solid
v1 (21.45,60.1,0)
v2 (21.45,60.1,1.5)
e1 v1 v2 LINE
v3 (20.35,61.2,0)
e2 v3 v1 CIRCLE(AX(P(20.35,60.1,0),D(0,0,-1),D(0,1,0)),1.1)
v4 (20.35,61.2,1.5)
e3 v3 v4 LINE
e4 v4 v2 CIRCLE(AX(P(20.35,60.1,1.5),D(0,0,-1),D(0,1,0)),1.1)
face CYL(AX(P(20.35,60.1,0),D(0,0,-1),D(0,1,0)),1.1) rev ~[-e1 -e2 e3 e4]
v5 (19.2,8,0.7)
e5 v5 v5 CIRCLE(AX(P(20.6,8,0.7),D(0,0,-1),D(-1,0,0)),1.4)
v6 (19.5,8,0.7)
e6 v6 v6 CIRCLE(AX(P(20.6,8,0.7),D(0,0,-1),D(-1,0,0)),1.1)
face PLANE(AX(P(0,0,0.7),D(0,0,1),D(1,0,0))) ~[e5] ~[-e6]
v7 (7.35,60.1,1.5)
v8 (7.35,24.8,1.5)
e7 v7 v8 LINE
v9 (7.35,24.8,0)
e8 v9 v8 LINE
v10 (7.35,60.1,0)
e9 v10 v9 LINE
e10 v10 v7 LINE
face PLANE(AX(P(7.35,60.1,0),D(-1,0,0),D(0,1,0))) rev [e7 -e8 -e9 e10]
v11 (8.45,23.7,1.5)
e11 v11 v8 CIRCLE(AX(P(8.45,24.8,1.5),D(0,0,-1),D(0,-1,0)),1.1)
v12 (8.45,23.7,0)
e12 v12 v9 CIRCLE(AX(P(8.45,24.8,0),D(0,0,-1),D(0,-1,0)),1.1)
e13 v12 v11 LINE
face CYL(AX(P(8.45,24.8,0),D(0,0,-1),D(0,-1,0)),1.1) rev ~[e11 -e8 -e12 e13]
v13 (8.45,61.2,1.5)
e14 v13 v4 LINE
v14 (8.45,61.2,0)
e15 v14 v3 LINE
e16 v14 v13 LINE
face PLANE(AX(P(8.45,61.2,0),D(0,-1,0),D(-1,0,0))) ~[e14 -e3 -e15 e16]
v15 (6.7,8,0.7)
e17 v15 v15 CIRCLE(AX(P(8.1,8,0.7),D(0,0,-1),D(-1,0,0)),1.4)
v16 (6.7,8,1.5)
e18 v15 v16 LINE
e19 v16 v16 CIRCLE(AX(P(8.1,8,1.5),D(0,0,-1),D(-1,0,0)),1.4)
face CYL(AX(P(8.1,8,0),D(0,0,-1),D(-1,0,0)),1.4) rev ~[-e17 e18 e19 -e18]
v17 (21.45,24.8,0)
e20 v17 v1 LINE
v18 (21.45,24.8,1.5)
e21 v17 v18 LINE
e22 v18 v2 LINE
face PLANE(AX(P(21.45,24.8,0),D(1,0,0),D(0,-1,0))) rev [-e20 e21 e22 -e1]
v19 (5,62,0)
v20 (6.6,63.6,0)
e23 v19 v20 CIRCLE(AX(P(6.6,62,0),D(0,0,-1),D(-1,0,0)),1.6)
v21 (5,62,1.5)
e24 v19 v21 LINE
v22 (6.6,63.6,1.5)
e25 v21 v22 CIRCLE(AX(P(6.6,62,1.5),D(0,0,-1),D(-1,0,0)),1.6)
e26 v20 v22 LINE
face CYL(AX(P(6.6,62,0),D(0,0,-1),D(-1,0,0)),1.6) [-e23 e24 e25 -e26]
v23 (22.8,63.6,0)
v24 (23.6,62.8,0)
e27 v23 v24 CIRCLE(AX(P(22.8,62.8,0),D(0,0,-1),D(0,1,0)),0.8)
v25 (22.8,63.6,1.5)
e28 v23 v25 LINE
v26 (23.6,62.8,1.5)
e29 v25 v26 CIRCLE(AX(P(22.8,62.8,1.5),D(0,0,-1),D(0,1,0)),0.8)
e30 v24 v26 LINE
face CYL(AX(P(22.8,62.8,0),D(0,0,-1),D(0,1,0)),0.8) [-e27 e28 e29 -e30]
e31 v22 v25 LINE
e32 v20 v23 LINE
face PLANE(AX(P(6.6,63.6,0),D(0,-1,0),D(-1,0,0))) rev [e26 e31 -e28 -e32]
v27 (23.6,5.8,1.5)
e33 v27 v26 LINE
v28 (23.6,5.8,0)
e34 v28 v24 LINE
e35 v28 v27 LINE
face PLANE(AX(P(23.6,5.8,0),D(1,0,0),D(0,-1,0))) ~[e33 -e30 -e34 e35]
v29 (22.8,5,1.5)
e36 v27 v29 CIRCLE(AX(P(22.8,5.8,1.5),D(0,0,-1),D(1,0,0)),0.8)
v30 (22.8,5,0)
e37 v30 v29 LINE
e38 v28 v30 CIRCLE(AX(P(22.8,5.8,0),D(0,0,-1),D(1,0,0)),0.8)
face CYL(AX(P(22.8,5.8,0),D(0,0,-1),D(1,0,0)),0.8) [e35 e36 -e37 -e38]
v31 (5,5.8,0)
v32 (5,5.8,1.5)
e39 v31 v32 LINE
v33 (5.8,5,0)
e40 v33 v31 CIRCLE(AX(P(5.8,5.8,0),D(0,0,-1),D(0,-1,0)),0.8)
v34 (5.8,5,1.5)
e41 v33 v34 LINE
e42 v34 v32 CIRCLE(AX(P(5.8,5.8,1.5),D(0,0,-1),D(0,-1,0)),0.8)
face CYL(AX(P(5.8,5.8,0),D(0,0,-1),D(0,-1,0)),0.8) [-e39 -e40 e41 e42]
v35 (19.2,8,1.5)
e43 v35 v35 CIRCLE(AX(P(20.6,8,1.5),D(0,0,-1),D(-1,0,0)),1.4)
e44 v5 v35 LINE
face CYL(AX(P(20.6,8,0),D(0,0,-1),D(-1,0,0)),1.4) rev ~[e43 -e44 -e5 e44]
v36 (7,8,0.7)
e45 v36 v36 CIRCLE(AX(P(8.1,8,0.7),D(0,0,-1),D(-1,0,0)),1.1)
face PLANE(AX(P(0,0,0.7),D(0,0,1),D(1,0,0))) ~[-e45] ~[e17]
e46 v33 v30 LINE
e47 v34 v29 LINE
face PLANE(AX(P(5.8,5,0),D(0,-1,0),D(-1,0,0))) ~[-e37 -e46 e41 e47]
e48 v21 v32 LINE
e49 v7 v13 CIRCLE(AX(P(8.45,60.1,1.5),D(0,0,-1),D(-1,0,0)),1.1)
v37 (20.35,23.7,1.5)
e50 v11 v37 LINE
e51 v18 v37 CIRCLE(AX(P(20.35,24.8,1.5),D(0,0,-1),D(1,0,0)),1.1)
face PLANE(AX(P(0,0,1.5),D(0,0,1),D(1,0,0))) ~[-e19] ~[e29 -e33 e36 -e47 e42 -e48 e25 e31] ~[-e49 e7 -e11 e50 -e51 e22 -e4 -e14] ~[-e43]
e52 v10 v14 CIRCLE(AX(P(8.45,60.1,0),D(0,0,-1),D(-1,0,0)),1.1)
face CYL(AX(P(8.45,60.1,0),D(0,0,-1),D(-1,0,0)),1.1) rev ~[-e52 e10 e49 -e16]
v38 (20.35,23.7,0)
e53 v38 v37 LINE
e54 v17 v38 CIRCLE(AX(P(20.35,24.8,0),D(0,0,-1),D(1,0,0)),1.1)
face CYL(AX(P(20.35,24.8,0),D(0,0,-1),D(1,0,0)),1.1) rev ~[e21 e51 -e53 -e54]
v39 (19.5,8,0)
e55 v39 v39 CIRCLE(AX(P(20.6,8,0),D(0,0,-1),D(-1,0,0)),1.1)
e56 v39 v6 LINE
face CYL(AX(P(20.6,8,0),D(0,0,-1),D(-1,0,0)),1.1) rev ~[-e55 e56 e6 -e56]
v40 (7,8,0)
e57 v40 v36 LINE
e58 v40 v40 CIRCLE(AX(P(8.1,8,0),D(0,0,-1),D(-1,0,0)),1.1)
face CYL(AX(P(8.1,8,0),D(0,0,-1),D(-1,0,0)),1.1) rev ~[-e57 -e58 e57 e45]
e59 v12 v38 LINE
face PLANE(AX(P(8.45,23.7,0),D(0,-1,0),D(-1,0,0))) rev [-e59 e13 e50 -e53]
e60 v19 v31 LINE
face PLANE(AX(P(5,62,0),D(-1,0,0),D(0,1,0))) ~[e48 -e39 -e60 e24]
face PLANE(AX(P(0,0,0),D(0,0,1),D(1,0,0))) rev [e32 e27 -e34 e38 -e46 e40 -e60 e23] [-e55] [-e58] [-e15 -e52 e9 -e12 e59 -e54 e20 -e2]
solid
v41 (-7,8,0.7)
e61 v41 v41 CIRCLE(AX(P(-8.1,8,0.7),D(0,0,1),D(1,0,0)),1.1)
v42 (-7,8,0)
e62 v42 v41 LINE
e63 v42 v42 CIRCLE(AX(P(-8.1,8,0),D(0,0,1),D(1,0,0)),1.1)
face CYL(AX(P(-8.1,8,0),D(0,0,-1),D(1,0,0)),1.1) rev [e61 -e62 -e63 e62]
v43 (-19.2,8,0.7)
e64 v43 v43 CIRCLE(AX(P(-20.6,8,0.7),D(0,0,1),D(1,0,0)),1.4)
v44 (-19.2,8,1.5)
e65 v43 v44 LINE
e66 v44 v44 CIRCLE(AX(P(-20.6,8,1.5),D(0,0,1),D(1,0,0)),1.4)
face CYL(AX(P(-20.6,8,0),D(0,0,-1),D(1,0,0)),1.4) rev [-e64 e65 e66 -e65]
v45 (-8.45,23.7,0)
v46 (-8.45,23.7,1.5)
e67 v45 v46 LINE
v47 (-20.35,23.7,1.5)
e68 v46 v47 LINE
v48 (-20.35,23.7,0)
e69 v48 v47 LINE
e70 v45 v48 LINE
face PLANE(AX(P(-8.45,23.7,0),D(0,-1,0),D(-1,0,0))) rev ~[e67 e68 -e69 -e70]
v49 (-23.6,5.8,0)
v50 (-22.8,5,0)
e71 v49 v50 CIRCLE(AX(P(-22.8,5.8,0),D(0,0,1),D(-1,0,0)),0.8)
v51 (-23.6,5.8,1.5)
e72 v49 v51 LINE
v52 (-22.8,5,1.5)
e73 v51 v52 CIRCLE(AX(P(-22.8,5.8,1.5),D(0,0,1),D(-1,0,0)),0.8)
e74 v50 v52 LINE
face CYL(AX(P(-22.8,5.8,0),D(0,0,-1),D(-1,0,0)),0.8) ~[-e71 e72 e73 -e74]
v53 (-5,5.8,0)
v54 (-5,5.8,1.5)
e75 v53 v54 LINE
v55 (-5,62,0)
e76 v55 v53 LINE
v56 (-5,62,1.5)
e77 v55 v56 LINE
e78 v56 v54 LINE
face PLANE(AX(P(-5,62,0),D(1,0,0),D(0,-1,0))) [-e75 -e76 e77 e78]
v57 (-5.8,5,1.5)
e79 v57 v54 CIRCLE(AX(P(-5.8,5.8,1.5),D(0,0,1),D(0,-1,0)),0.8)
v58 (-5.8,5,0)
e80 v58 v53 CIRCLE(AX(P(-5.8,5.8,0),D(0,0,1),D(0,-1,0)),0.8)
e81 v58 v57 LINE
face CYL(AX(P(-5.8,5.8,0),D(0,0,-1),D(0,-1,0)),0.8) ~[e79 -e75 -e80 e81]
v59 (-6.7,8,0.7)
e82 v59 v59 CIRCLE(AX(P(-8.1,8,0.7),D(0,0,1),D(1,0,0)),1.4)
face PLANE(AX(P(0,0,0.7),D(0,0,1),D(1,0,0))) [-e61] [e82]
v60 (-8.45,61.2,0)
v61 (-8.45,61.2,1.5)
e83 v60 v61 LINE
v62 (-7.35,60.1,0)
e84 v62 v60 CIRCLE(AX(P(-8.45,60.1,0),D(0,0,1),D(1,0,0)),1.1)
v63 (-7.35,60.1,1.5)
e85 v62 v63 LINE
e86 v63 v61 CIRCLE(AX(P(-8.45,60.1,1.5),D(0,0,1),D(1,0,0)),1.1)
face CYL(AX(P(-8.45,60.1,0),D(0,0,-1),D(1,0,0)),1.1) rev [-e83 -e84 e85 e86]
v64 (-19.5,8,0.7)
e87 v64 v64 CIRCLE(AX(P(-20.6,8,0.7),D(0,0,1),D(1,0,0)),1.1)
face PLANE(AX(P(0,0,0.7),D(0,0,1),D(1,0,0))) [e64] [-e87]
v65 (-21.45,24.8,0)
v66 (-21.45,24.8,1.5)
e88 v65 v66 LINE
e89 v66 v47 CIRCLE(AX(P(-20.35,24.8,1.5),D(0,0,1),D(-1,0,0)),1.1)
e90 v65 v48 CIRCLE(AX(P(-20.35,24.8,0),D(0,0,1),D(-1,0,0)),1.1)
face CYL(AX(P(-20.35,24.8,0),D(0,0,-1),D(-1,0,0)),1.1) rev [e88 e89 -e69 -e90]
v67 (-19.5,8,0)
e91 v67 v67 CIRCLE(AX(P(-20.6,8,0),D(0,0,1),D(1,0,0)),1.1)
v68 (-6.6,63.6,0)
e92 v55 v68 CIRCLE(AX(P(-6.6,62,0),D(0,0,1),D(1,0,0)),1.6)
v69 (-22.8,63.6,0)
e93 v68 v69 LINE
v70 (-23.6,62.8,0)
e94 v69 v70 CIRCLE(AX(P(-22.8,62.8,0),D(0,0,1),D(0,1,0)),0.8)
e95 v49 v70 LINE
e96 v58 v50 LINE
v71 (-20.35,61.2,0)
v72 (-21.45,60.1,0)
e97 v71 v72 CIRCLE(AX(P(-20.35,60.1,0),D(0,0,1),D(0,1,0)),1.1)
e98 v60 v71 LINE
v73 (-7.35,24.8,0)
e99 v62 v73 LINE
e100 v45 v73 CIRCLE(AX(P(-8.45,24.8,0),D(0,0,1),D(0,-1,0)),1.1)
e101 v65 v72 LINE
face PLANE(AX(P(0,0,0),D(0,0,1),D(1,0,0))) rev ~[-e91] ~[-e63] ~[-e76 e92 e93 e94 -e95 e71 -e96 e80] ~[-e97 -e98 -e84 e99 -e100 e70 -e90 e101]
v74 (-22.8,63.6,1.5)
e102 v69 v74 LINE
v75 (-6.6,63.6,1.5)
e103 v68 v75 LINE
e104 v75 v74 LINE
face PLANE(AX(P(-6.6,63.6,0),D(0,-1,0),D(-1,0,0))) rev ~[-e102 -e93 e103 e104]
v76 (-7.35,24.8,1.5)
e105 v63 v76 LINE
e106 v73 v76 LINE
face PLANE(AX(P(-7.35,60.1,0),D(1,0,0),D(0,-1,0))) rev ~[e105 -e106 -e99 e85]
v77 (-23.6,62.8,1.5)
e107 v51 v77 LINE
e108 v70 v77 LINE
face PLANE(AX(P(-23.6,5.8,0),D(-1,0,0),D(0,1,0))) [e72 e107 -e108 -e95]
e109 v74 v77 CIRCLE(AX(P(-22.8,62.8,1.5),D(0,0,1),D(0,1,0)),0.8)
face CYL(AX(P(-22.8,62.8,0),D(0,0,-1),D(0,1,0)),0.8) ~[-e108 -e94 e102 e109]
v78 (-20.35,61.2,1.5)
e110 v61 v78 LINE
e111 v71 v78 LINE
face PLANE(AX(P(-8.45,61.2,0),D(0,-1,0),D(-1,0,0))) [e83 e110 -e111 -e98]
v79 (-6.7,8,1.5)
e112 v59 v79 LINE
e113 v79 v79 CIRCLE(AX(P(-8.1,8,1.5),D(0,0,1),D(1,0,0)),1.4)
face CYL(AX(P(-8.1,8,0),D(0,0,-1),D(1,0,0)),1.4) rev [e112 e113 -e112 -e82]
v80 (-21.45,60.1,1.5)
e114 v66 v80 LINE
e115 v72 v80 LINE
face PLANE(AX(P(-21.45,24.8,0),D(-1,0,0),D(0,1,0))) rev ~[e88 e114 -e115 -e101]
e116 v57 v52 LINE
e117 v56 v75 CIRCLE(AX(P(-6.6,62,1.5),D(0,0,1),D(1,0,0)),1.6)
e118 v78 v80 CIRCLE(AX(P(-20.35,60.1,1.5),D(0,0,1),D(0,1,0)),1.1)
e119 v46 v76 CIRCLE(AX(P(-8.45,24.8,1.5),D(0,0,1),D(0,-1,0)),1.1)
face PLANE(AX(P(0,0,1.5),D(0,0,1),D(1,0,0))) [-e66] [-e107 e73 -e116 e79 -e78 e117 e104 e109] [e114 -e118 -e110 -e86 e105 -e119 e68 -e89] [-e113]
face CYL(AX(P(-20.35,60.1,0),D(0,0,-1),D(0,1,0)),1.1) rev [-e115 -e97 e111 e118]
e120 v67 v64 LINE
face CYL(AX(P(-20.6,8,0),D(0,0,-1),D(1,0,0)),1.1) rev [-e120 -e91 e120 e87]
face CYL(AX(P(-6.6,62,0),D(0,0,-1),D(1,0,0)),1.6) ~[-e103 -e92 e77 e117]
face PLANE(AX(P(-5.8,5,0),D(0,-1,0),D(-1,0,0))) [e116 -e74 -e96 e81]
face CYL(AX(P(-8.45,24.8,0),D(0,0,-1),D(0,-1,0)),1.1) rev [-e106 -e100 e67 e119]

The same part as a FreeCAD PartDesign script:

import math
import FreeCAD as App
import Part
import Sketcher
from FreeCAD import Vector
Q = App.Units.Quantity

doc = App.newDocument("Part")
body = doc.addObject("PartDesign::Body", "Body")
body.AllowCompound = True

# Sketch on XY plane
sketch1 = doc.addObject("Sketcher::SketchObject", "Sketch")
body.addObject(sketch1)
sketch1.AttachmentSupport = (doc.XY_Plane, [""])
sketch1.MapMode = "FlatFace"
sketch1.addGeometry([
    Part.ArcOfCircle(Part.Circle(Vector(-6.6, 62, 0), Vector(0, 0, 1), 1.6), math.radians(0), math.radians(90)),  # 0
    Part.LineSegment(Vector(-6.6, 63.6, 0), Vector(-22.8, 63.6, 0)),  # 1
    Part.ArcOfCircle(Part.Circle(Vector(-22.8, 62.8, 0), Vector(0, 0, 1), 0.8), math.radians(90), math.radians(180)),  # 2
    Part.LineSegment(Vector(-23.6, 62.8, 0), Vector(-23.6, 5.8, 0)),  # 3
    Part.ArcOfCircle(Part.Circle(Vector(-22.8, 5.8, 0), Vector(0, 0, 1), 0.8), math.radians(180), math.radians(270)),  # 4
    Part.LineSegment(Vector(-22.8, 5, 0), Vector(-5.8, 5, 0)),  # 5
    Part.ArcOfCircle(Part.Circle(Vector(-5.8, 5.8, 0), Vector(0, 0, 1), 0.8), math.radians(-90), math.radians(0)),  # 6
    Part.LineSegment(Vector(-5, 5.8, 0), Vector(-5, 62, 0)),  # 7
    Part.Circle(Vector(-20.6, 8, 0), Vector(0, 0, 1), 1.4),  # 8
    Part.Circle(Vector(-8.1, 8, 0), Vector(0, 0, 1), 1.4),  # 9
    Part.ArcOfCircle(Part.Circle(Vector(-20.35, 24.8, 0), Vector(0, 0, 1), 1.1), math.radians(180), math.radians(270)),  # 10
    Part.LineSegment(Vector(-21.45, 24.8, 0), Vector(-21.45, 60.1, 0)),  # 11
    Part.ArcOfCircle(Part.Circle(Vector(-20.35, 60.1, 0), Vector(0, 0, 1), 1.1), math.radians(90), math.radians(180)),  # 12
    Part.LineSegment(Vector(-20.35, 61.2, 0), Vector(-8.45, 61.2, 0)),  # 13
    Part.ArcOfCircle(Part.Circle(Vector(-8.45, 60.1, 0), Vector(0, 0, 1), 1.1), math.radians(0), math.radians(90)),  # 14
    Part.LineSegment(Vector(-7.35, 60.1, 0), Vector(-7.35, 24.8, 0)),  # 15
    Part.ArcOfCircle(Part.Circle(Vector(-8.45, 24.8, 0), Vector(0, 0, 1), 1.1), math.radians(-90), math.radians(0)),  # 16
    Part.LineSegment(Vector(-8.45, 23.7, 0), Vector(-20.35, 23.7, 0)),  # 17
], False)
sketch1.addConstraint([
    Sketcher.Constraint("Tangent", 0, 2, 1, 1),
    Sketcher.Constraint("Tangent", 1, 2, 2, 1),
    Sketcher.Constraint("Tangent", 2, 2, 3, 1),
    Sketcher.Constraint("Tangent", 3, 2, 4, 1),
    Sketcher.Constraint("Tangent", 4, 2, 5, 1),
    Sketcher.Constraint("Tangent", 5, 2, 6, 1),
    Sketcher.Constraint("Tangent", 6, 2, 7, 1),
    Sketcher.Constraint("Tangent", 7, 2, 0, 1),
    Sketcher.Constraint("Tangent", 10, 1, 11, 1),
    Sketcher.Constraint("Tangent", 11, 2, 12, 2),
    Sketcher.Constraint("Tangent", 12, 1, 13, 1),
    Sketcher.Constraint("Tangent", 13, 2, 14, 2),
    Sketcher.Constraint("Tangent", 14, 1, 15, 1),
    Sketcher.Constraint("Tangent", 15, 2, 16, 2),
    Sketcher.Constraint("Tangent", 16, 1, 17, 1),
    Sketcher.Constraint("Tangent", 17, 2, 10, 2),
    Sketcher.Constraint("Horizontal", 1),
    Sketcher.Constraint("Vertical", 3),
    Sketcher.Constraint("Horizontal", 5),
    Sketcher.Constraint("Vertical", 7),
    Sketcher.Constraint("Vertical", 11),
    Sketcher.Constraint("Horizontal", 13),
    Sketcher.Constraint("Vertical", 15),
    Sketcher.Constraint("Horizontal", 17),
    Sketcher.Constraint("Equal", 2, 4),
    Sketcher.Constraint("Equal", 4, 6),
    Sketcher.Constraint("Equal", 8, 9),
    Sketcher.Constraint("Equal", 10, 12),
    Sketcher.Constraint("Equal", 12, 14),
    Sketcher.Constraint("Equal", 14, 16),
    Sketcher.Constraint("Horizontal", 8, 3, 9, 3),
    Sketcher.Constraint("Diameter", 8, Q("2.8 mm")),
    Sketcher.Constraint("Radius", 10, Q("1.1 mm")),
    Sketcher.Constraint("Radius", 0, Q("1.6 mm")),
    Sketcher.Constraint("Radius", 2, Q("0.8 mm")),
    Sketcher.Constraint("DistanceX", 4, 3, 8, 3, Q("2.2 mm")),
    Sketcher.Constraint("DistanceY", 4, 3, 8, 3, Q("2.2 mm")),
    Sketcher.Constraint("DistanceX", 5, 1, 5, 2, Q("17 mm")),
    Sketcher.Constraint("DistanceY", 3, 2, 3, 1, Q("57 mm")),
    Sketcher.Constraint("DistanceX", 13, 1, 13, 2, Q("11.9 mm")),
    Sketcher.Constraint("DistanceY", 11, 1, 11, 2, Q("35.3 mm")),
    Sketcher.Constraint("DistanceY", -1, 1, 0, 3, Q("62 mm")),
    Sketcher.Constraint("DistanceX", 6, 2, -1, 1, Q("5 mm")),
    Sketcher.Constraint("DistanceY", 4, 3, 10, 3, Q("19 mm")),
    Sketcher.Constraint("DistanceX", 9, 3, -1, 1, Q("8.1 mm")),
    Sketcher.Constraint("DistanceX", 10, 3, -1, 1, Q("20.35 mm")),
])
pad1 = doc.addObject("PartDesign::Pad", "Pad")
body.addObject(pad1)
pad1.Profile = sketch1
pad1.Length = 1.5

# Sketch on XY plane
sketch2 = doc.addObject("Sketcher::SketchObject", "Sketch001")
body.addObject(sketch2)
sketch2.AttachmentSupport = (doc.XY_Plane, [""])
sketch2.MapMode = "FlatFace"
sketch2.addGeometry([
    Part.Circle(Vector(-20.6, 8, 0), Vector(0, 0, 1), 1.4),
    Part.Circle(Vector(-20.6, 8, 0), Vector(0, 0, 1), 1.1),
    Part.Circle(Vector(-8.1, 8, 0), Vector(0, 0, 1), 1.4),
    Part.Circle(Vector(-8.1, 8, 0), Vector(0, 0, 1), 1.1),
], False)
sketch2.addConstraint([
    Sketcher.Constraint("Coincident", 1, 3, 0, 3),
    Sketcher.Constraint("Coincident", 3, 3, 2, 3),
    Sketcher.Constraint("Equal", 0, 2),
    Sketcher.Constraint("Equal", 1, 3),
    Sketcher.Constraint("Horizontal", 1, 3, 2, 3),
    Sketcher.Constraint("Diameter", 0, Q("2.8 mm")),
    Sketcher.Constraint("Diameter", 1, Q("2.2 mm")),
    Sketcher.Constraint("DistanceY", -1, 1, 0, 3, Q("8 mm")),
    Sketcher.Constraint("DistanceX", 0, 3, -1, 1, Q("20.6 mm")),
    Sketcher.Constraint("DistanceX", 2, 3, -1, 1, Q("8.1 mm")),
])
pad2 = doc.addObject("PartDesign::Pad", "Pad001")
body.addObject(pad2)
pad2.Profile = sketch2
pad2.Length = 0.7
doc.recompute()

mirrored = doc.addObject("PartDesign::Mirrored", "Mirrored")
body.addObject(mirrored)
mirrored.TransformMode = "Transform body"
mirrored.MirrorPlane = (doc.YZ_Plane, [""])
body.Tip = mirrored

doc.recompute()
